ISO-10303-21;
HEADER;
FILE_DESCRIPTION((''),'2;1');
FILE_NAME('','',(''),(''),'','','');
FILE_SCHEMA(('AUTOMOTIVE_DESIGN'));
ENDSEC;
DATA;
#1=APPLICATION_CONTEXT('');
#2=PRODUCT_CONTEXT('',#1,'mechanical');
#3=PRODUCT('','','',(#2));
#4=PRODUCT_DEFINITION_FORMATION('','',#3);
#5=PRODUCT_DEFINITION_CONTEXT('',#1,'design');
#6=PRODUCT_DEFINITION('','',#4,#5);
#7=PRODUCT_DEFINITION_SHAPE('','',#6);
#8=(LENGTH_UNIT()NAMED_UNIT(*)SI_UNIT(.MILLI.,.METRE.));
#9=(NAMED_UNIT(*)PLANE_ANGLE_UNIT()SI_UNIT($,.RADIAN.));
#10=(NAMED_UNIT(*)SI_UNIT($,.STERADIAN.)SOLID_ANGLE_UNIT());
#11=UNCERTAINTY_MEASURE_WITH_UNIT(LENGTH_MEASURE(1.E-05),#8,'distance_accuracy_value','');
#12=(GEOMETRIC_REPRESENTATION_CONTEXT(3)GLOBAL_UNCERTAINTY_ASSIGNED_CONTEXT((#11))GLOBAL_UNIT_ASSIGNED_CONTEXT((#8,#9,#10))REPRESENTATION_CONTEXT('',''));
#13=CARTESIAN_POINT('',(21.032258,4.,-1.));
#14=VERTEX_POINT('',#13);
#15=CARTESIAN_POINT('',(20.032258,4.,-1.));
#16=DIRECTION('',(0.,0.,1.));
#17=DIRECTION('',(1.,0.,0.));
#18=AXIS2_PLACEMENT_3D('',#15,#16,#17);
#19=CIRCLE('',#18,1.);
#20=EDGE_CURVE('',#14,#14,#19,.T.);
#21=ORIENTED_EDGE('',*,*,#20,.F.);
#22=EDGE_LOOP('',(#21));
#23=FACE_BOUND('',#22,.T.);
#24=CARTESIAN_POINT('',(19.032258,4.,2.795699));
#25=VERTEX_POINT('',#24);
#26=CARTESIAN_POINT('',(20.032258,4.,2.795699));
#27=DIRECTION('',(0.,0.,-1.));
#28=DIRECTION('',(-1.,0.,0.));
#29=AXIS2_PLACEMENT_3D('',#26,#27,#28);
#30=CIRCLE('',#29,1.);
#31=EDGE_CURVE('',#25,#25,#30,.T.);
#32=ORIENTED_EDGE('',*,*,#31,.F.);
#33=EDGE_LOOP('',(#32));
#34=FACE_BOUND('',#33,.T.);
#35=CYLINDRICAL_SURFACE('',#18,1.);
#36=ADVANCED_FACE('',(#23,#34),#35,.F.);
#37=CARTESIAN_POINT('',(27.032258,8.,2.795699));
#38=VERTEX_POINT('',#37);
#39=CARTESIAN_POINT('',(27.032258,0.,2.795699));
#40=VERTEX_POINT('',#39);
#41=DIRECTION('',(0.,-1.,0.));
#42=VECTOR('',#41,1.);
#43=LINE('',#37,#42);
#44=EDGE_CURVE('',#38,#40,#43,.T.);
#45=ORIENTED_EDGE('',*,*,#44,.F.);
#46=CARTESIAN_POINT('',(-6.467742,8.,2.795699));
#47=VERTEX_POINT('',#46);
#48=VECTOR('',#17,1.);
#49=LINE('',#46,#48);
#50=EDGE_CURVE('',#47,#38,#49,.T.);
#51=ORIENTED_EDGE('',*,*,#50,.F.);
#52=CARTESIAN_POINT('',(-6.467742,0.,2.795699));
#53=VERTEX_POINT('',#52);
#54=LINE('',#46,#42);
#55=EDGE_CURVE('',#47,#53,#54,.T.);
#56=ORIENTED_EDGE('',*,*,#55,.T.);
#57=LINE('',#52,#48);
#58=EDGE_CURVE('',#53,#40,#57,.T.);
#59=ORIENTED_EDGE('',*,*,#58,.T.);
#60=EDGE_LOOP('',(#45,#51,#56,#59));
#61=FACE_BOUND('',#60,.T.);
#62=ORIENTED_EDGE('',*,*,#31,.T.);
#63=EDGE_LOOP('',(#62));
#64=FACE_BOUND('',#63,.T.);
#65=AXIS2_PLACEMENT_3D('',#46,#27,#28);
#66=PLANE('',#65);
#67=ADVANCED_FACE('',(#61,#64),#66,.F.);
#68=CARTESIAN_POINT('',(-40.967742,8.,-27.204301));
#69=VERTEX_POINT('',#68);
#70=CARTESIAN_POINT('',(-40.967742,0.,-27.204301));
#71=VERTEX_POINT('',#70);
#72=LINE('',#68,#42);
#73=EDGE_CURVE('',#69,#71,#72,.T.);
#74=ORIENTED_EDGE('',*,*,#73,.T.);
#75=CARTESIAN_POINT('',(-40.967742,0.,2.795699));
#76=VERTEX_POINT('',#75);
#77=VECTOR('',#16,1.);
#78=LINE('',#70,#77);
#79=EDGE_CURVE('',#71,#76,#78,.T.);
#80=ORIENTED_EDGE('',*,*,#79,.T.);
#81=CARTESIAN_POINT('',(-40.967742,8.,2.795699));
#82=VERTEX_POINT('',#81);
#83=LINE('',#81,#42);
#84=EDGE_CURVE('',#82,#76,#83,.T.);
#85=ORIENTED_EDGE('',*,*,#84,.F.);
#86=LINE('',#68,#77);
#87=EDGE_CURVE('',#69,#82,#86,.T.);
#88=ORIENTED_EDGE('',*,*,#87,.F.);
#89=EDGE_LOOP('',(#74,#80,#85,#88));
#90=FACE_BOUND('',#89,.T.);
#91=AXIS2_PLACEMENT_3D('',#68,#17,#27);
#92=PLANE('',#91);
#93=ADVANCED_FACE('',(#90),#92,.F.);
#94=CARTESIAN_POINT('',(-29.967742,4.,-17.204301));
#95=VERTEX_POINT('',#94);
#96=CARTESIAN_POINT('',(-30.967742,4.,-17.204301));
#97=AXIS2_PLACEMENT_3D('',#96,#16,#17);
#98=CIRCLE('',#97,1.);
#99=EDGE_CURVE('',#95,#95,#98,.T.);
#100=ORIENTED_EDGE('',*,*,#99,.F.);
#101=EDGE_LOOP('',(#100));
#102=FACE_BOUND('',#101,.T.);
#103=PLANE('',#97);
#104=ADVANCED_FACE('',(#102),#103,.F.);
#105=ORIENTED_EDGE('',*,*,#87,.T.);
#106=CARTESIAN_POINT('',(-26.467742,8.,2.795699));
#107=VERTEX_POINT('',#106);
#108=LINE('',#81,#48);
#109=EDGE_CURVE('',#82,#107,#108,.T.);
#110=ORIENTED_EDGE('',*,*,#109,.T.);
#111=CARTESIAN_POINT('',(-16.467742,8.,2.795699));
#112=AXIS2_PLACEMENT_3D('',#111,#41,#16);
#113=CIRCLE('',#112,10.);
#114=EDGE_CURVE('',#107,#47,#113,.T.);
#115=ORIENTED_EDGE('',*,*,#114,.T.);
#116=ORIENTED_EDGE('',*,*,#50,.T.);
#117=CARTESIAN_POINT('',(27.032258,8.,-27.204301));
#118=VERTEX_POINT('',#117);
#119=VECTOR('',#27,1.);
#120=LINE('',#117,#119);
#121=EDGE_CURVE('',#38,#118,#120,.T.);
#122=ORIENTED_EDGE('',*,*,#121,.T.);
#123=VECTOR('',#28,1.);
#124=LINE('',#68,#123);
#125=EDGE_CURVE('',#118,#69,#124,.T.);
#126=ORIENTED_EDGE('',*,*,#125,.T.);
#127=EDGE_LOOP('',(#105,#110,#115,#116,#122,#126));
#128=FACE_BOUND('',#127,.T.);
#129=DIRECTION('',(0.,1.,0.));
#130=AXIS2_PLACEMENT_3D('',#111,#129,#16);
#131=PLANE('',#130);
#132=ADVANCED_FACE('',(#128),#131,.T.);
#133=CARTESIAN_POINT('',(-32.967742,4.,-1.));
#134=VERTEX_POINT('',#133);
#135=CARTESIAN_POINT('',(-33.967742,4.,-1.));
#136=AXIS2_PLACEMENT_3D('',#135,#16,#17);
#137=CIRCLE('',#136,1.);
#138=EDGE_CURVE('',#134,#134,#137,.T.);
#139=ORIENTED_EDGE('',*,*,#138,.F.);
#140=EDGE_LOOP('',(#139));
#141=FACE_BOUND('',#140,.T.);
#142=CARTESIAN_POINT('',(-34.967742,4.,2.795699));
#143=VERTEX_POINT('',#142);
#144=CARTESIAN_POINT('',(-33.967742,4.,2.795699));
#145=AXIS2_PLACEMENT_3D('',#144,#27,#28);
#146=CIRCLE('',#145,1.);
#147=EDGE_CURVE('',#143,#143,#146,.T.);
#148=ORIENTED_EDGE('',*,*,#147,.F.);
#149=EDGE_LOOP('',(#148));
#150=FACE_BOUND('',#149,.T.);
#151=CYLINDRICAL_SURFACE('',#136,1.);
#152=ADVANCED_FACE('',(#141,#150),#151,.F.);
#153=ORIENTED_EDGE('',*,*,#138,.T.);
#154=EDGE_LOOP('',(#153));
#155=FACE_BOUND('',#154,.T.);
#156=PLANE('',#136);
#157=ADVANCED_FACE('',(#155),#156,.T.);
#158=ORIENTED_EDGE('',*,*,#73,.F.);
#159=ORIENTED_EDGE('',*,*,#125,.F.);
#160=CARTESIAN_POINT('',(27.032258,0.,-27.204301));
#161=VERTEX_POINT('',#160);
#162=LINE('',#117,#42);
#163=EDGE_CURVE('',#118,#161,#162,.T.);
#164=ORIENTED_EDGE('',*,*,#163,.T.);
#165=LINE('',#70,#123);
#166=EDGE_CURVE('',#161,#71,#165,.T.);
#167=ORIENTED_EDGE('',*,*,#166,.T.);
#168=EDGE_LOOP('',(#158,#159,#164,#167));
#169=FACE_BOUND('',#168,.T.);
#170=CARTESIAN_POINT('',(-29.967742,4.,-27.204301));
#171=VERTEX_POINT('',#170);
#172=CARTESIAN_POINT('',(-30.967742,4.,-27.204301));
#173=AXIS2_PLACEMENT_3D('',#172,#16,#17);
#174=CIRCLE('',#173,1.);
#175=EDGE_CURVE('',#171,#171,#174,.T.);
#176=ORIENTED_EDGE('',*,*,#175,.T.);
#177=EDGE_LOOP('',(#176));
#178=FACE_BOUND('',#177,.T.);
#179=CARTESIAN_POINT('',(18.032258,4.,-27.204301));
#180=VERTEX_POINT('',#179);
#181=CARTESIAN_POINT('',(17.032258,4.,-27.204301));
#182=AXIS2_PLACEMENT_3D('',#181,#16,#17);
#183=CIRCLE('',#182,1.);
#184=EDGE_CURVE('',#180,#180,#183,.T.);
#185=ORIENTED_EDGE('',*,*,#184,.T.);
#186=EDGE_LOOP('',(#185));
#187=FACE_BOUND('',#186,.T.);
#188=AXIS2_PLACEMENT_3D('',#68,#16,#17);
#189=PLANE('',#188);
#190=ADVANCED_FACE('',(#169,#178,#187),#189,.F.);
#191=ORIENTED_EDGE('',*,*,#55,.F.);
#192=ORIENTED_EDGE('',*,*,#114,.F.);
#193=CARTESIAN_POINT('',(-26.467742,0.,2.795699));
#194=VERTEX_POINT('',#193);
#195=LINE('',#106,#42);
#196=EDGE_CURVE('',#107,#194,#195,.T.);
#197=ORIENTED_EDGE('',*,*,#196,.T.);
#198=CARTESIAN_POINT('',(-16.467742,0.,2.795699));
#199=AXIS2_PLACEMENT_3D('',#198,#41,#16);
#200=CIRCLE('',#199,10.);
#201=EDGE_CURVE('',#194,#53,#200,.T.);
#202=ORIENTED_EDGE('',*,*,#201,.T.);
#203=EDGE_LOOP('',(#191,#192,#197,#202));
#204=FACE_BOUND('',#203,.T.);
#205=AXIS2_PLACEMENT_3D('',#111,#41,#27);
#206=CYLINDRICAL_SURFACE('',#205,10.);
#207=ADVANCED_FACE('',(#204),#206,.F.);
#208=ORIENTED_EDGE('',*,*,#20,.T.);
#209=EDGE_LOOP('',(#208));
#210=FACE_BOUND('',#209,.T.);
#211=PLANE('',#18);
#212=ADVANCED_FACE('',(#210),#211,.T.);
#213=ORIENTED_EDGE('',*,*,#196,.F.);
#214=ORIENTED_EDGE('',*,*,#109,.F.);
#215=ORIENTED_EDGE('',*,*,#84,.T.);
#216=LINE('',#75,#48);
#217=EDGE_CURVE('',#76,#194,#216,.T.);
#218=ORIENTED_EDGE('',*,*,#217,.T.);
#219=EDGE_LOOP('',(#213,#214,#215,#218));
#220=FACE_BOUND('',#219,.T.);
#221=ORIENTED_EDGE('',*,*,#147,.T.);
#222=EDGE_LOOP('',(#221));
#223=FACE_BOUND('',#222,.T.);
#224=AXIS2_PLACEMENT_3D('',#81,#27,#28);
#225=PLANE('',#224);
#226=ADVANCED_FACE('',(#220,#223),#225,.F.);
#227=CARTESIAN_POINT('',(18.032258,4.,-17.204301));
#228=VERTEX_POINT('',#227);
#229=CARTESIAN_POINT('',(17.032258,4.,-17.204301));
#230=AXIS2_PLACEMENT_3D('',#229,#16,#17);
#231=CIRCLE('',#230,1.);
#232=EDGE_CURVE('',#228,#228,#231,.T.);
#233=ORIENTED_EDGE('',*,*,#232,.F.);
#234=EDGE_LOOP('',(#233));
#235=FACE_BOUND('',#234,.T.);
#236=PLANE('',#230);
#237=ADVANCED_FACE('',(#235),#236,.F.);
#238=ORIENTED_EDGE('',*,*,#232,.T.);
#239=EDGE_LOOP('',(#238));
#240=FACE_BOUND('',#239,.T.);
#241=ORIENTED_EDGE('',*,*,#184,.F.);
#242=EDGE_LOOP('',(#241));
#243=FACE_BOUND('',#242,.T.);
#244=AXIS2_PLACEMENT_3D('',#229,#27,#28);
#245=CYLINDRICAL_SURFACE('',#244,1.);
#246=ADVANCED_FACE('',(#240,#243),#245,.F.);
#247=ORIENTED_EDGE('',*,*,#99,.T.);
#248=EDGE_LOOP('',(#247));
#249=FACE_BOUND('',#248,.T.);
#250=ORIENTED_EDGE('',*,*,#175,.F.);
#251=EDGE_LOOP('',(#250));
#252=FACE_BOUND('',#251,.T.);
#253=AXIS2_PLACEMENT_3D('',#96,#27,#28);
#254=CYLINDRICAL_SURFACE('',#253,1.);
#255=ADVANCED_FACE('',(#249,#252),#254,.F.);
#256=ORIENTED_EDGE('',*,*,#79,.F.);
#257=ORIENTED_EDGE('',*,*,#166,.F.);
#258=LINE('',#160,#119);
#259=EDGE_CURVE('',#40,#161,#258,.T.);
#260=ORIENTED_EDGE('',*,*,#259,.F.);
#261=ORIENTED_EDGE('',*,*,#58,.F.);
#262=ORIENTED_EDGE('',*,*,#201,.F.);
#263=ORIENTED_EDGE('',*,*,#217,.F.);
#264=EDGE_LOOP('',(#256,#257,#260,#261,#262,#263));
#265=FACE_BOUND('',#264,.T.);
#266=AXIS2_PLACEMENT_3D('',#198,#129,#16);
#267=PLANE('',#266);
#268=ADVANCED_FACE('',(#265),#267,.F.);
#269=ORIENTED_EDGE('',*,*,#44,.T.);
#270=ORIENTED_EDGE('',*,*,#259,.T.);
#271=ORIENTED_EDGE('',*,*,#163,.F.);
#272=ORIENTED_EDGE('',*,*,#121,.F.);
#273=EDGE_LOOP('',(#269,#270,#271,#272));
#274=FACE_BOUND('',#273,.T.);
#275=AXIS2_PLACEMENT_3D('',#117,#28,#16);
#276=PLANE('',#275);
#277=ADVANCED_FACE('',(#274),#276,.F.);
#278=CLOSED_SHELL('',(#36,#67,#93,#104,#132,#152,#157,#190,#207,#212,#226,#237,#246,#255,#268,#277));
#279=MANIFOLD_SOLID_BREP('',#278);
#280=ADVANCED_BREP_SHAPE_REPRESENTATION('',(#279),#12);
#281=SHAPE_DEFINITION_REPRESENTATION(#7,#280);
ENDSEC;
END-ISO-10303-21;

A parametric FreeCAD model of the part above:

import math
import FreeCAD as App
import Part
import Sketcher

V = App.Vector
Q = App.Units.Quantity

doc = App.newDocument("Part")
params = doc.addObject("Spreadsheet::Sheet", "Params")
for row, (alias, value) in enumerate([
    ("sketch1_radius", "10 mm"),
    ("sketch1_width", "68 mm"),
    ("sketch1_height", "30 mm"),
    ("sketch1_width2", "14.5 mm"),
    ("pad1_length", "8 mm"),
    ("sketch2_diameter", "2 mm"),
    ("pocket1_length", "5 mm"),
    ("sketch3_diameter", "2 mm"),
    ("pocket2_length", "10 mm"),
], start=1):
    params.set(f"A{row}", alias)
    params.set(f"B{row}", "=" + value)
    params.setAlias(f"B{row}", alias)

body = doc.addObject("PartDesign::Body", "Body")

sketch1 = body.newObject("Sketcher::SketchObject", "Sketch")
sketch1.AttachmentSupport = (doc.getObject("XZ_Plane"), [""])
sketch1.MapMode = "FlatFace"
sketch1.addGeometry([
    Part.LineSegment(V(27, -27, 0), V(-41, -27, 0)),
    Part.LineSegment(V(-41, -27, 0), V(-41, 3, 0)),
    Part.LineSegment(V(-41, 3, 0), V(-26, 3, 0)),
    Part.ArcOfCircle(Part.Circle(V(-16, 3, 0), V(0, 0, 1), 10), math.radians(180), math.radians(360)),
    Part.LineSegment(V(-6, 3, 0), V(27, 3, 0)),
    Part.LineSegment(V(27, 3, 0), V(27, -27, 0)),
], False)
sketch1.addConstraint([
    Sketcher.Constraint("Coincident", 0, 2, 1, 1),
    Sketcher.Constraint("Coincident", 1, 2, 2, 1),
    Sketcher.Constraint("Coincident", 2, 2, 3, 1),
    Sketcher.Constraint("Coincident", 3, 2, 4, 1),
    Sketcher.Constraint("Coincident", 4, 2, 5, 1),
    Sketcher.Constraint("Coincident", 5, 2, 0, 1),
    Sketcher.Constraint("Horizontal", 0),
    Sketcher.Constraint("Vertical", 1),
    Sketcher.Constraint("Horizontal", 2),
    Sketcher.Constraint("Horizontal", 4),
    Sketcher.Constraint("Vertical", 5),
    Sketcher.Constraint("Horizontal", 3, 3, 1, 2),
    Sketcher.Constraint("Horizontal", 2, 2, 3, 2),
    Sketcher.Constraint("Radius", 3, Q("10 mm")),
    Sketcher.Constraint("DistanceX", 0, 2, 0, 1, Q("68 mm")),
    Sketcher.Constraint("DistanceY", 1, 1, 1, 2, Q("30 mm")),
    Sketcher.Constraint("DistanceX", 2, 1, 2, 2, Q("14.5 mm")),
    Sketcher.Constraint("DistanceY", -1, 1, 3, 3, Q("2.795699 mm")),
    Sketcher.Constraint("DistanceX", 3, 3, -1, 1, Q("16.467742 mm")),
])
sketch1.setExpression("Constraints[13]", "Params.sketch1_radius")
sketch1.setExpression("Constraints[14]", "Params.sketch1_width")
sketch1.setExpression("Constraints[15]", "Params.sketch1_height")
sketch1.setExpression("Constraints[16]", "Params.sketch1_width2")
pad1 = body.newObject("PartDesign::Pad", "Pad")
pad1.Profile = sketch1
pad1.setExpression("Length", "Params.pad1_length")
pad1.Reversed = True

sketch2 = body.newObject("Sketcher::SketchObject", "Sketch001")
sketch2.AttachmentSupport = (doc.getObject("XY_Plane"), [""])
sketch2.MapMode = "FlatFace"
sketch2.AttachmentOffset = App.Placement(V(0, 0, 4), App.Rotation())
sketch2.addGeometry([
    Part.Circle(V(-34, 4, 0), V(0, 0, 1), 1),
    Part.Circle(V(20, 4, 0), V(0, 0, 1), 1),
], False)
sketch2.addConstraint([
    Sketcher.Constraint("Equal", 0, 1),
    Sketcher.Constraint("Horizontal", 0, 3, 1, 3),
    Sketcher.Constraint("Diameter", 0, Q("2 mm")),
    Sketcher.Constraint("DistanceY", -1, 1, 0, 3, Q("4 mm")),
    Sketcher.Constraint("DistanceX", 0, 3, 1, 3, Q("54 mm")),
    Sketcher.Constraint("DistanceX", 0, 3, -1, 1, Q("33.967742 mm")),
])
sketch2.setExpression("Constraints[2]", "Params.sketch2_diameter")
pocket1 = body.newObject("PartDesign::Pocket", "Pocket")
pocket1.Profile = sketch2
pocket1.setExpression("Length", "Params.pocket1_length")

sketch3 = body.newObject("Sketcher::SketchObject", "Sketch002")
sketch3.AttachmentSupport = (doc.getObject("XY_Plane"), [""])
sketch3.MapMode = "FlatFace"
sketch3.AttachmentOffset = App.Placement(V(0, 0, -27.204301), App.Rotation())
sketch3.addGeometry([
    Part.Circle(V(17, 4, 0), V(0, 0, 1), 1),
    Part.Circle(V(-31, 4, 0), V(0, 0, 1), 1),
], False)
sketch3.addConstraint([
    Sketcher.Constraint("Equal", 0, 1),
    Sketcher.Constraint("Horizontal", 0, 3, 1, 3),
    Sketcher.Constraint("Diameter", 0, Q("2 mm")),
    Sketcher.Constraint("DistanceY", -1, 1, 0, 3, Q("4 mm")),
    Sketcher.Constraint("DistanceX", 1, 3, 0, 3, Q("48 mm")),
    Sketcher.Constraint("DistanceX", -1, 1, 0, 3, Q("17.032258 mm")),
])
sketch3.setExpression("Constraints[2]", "Params.sketch3_diameter")
pocket2 = body.newObject("PartDesign::Pocket", "Pocket001")
pocket2.Profile = sketch3
pocket2.setExpression("Length", "Params.pocket2_length")
pocket2.Reversed = True

doc.recompute()
